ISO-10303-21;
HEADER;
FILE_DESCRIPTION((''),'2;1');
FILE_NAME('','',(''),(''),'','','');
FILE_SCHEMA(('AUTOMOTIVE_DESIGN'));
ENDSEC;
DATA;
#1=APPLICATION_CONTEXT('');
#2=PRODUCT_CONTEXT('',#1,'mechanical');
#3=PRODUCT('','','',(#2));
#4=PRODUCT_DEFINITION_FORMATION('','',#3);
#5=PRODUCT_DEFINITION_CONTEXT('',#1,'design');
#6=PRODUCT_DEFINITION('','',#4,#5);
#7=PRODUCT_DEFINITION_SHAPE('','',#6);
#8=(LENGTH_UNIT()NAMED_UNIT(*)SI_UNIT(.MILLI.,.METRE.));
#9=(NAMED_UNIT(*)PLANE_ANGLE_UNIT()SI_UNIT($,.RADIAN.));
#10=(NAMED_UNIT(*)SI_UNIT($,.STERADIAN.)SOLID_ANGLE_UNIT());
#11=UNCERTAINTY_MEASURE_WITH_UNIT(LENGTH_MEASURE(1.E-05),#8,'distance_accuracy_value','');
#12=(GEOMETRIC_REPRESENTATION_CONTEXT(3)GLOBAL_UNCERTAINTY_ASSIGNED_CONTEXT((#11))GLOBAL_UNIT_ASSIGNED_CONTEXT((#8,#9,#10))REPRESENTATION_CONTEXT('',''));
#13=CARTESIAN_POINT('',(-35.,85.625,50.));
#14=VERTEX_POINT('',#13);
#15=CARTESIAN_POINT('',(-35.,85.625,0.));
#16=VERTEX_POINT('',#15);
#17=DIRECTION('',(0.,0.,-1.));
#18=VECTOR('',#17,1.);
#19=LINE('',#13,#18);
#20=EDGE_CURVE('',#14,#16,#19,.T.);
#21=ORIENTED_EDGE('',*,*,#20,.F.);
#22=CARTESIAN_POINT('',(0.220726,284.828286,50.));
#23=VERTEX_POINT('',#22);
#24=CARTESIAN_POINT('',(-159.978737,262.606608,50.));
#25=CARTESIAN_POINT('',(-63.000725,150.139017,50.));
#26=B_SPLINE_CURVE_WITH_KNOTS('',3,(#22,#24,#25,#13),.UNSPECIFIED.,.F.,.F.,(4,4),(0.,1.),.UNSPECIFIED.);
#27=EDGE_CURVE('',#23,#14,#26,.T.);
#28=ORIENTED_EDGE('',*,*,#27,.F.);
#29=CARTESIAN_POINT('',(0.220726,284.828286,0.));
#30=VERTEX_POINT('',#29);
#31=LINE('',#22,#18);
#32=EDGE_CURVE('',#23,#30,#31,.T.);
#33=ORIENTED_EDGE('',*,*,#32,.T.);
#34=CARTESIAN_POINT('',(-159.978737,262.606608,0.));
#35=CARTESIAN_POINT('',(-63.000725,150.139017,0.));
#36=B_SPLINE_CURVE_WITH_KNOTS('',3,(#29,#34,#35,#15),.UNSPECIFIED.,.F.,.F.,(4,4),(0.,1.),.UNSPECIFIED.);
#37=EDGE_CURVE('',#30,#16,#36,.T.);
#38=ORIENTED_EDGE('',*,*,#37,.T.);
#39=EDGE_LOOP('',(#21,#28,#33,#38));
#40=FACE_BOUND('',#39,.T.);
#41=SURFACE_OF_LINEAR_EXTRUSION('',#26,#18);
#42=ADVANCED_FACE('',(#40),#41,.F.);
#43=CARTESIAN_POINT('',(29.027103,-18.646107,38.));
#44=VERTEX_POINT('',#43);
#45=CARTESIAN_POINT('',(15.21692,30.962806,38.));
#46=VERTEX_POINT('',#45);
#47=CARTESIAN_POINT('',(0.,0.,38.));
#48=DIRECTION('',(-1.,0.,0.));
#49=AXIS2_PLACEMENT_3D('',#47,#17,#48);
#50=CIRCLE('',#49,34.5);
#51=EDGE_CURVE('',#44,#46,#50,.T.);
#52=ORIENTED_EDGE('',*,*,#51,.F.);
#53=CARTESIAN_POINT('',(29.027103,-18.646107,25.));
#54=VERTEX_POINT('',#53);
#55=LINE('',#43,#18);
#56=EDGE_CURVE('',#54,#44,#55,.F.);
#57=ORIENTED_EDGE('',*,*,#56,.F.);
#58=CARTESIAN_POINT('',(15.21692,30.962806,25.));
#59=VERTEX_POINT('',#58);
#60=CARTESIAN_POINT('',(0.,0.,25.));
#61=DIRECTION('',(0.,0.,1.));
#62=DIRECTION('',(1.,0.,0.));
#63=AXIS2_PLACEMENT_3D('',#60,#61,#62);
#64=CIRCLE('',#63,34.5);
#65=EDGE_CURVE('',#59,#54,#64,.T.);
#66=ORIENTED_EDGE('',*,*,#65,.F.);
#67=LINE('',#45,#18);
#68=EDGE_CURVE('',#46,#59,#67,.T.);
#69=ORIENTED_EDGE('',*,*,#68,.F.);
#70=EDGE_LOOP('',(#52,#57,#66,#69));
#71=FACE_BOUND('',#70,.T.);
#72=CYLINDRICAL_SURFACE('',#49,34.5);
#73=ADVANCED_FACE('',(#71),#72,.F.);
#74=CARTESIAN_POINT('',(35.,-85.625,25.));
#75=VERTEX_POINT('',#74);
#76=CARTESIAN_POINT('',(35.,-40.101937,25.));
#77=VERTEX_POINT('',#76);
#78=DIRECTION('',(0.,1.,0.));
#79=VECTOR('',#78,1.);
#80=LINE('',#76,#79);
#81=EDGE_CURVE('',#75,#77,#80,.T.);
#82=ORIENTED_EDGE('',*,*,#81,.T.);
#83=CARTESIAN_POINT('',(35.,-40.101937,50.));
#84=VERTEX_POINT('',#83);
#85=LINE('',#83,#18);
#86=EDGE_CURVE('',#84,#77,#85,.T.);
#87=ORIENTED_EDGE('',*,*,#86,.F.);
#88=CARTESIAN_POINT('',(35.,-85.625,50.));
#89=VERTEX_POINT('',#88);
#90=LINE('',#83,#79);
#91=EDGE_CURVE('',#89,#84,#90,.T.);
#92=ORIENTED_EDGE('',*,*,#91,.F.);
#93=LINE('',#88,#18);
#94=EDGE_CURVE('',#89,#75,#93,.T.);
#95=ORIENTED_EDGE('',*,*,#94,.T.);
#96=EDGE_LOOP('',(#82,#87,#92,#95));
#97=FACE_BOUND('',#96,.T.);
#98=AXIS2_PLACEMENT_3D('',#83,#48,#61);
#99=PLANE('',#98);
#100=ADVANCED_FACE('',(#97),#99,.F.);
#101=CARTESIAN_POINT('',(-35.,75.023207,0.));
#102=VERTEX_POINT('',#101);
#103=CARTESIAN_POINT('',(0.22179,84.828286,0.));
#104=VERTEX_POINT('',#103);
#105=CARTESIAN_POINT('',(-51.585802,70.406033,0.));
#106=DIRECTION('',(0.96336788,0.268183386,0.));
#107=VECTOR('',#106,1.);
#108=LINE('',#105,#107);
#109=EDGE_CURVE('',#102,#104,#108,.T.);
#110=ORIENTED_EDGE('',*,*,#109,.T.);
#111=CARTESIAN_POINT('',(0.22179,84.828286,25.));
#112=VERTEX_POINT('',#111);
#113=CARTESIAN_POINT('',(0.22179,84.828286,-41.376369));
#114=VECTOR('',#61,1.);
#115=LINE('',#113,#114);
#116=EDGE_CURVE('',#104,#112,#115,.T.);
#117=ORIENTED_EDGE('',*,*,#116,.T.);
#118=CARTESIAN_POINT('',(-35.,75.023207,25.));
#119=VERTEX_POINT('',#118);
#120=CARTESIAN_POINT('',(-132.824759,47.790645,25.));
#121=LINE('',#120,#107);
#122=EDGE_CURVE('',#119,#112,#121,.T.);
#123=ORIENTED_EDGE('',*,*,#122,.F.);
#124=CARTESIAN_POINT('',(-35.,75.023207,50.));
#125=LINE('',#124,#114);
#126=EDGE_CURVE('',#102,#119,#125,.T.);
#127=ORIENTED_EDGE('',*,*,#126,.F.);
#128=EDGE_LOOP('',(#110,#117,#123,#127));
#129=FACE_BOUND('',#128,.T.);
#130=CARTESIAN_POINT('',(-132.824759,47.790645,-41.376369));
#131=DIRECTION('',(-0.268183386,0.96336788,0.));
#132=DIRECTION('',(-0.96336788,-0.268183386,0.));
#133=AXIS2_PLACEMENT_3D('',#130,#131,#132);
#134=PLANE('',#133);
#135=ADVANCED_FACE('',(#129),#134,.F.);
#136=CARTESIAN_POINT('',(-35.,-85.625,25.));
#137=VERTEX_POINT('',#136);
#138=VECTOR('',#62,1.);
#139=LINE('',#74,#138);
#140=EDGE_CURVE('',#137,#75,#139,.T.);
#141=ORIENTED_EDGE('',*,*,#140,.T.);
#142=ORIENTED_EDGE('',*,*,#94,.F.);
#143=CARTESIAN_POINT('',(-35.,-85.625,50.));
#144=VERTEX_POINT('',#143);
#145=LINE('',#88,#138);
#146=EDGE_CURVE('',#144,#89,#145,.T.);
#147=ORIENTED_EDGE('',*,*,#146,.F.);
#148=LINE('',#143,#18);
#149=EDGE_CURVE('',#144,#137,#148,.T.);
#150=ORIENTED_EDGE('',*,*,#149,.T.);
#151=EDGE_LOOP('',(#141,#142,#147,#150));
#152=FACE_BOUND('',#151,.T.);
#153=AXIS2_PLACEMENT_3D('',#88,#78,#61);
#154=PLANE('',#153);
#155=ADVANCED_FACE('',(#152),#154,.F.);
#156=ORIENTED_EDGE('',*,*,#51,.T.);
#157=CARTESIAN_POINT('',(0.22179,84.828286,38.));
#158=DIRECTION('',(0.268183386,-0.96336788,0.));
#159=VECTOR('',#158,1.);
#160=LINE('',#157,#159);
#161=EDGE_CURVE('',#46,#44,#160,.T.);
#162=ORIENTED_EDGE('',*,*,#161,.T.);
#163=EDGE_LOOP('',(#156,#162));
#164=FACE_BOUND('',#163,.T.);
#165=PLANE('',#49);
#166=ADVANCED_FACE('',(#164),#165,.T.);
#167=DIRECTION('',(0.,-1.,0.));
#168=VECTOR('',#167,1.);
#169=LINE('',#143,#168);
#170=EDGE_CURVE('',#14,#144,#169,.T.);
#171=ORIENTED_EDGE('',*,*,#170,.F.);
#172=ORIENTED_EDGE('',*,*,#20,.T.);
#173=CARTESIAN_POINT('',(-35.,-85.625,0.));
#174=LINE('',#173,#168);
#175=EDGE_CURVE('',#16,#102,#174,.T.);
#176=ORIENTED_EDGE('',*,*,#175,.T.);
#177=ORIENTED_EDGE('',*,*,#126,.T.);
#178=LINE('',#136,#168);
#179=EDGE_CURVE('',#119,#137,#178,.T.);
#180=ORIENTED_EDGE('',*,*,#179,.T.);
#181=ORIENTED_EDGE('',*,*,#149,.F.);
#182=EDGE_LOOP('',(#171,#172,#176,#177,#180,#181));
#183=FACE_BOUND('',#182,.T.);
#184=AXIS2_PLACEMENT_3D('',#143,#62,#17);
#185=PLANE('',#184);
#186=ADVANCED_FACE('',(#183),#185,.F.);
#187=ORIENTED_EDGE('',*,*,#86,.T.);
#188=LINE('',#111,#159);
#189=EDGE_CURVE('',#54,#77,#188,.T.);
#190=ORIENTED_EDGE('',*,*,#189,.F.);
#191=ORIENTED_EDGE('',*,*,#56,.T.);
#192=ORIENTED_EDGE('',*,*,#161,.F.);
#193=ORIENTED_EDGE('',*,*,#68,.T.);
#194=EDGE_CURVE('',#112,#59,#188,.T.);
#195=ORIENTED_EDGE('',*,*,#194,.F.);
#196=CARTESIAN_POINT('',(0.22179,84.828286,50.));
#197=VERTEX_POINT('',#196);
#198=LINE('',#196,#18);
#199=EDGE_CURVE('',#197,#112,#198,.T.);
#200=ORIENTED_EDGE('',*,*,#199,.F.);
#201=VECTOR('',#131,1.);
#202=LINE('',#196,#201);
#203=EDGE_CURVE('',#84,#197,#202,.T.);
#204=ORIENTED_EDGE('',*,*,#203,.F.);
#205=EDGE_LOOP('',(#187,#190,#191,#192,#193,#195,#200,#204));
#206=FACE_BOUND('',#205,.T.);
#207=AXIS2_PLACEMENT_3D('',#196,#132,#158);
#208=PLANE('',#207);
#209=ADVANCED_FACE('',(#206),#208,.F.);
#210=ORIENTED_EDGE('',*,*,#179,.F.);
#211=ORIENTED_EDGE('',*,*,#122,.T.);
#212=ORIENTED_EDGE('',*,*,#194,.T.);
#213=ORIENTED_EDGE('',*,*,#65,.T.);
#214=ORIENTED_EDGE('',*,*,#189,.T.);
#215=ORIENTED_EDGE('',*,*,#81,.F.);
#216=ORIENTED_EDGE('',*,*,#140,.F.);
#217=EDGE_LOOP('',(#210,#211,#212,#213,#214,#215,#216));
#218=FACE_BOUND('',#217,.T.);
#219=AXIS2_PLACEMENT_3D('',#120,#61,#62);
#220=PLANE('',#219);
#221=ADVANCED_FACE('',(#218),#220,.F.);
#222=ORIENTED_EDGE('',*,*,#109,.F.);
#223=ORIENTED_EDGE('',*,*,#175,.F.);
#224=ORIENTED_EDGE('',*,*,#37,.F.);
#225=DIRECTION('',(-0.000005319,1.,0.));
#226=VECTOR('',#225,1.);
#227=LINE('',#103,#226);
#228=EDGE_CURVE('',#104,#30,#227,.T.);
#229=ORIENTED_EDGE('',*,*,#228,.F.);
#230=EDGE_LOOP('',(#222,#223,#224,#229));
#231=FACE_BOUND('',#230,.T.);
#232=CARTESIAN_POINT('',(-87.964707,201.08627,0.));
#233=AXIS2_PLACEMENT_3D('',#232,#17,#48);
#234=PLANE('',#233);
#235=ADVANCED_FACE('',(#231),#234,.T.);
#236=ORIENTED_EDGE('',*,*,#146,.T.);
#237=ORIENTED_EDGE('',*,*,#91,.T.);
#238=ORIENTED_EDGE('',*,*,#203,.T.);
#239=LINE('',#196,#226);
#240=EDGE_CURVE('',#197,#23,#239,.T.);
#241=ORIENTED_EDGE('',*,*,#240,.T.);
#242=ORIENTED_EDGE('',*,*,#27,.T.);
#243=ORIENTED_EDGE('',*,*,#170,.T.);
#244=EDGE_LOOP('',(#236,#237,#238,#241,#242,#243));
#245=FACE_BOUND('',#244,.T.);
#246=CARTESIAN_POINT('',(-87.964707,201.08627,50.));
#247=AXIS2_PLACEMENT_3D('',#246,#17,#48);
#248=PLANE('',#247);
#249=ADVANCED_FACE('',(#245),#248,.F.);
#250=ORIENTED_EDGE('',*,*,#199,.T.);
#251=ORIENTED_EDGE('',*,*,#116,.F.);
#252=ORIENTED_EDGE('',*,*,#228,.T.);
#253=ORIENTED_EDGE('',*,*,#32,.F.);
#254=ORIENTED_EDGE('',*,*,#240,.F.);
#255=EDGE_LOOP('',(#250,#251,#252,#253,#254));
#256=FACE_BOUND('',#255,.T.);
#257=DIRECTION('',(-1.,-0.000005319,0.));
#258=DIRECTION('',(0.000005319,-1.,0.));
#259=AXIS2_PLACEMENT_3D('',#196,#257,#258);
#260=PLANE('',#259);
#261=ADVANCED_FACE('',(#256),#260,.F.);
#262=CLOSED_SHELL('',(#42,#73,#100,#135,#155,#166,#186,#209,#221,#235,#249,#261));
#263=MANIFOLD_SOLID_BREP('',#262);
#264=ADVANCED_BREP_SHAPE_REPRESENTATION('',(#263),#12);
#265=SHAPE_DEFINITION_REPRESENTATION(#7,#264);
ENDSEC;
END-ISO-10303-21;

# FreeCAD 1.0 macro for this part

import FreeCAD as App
import Part
import Sketcher

V = App.Vector

doc = App.newDocument("Part")
body = doc.addObject("PartDesign::Body", "Body")

# Sketch on XY plane
sketch1 = body.newObject("Sketcher::SketchObject", "Sketch")
sketch1.AttachmentSupport = (doc.getObject("XY_Plane"), [""])
sketch1.MapMode = "FlatFace"
sketch1.addGeometry(Part.LineSegment(V(0.22179, 84.828286, 0), V(0.220726, 284.828286, 0)), False)
sketch1.addGeometry(Part.BSplineCurve([V(0.220726, 284.828286, 0), V(-159.978737, 262.606608, 0), V(-63.000725, 150.139017, 0), V(-35, 85.625, 0)], [4, 4], [0, 1], False, 3, [1, 1, 1, 1], False), False)
sketch1.addGeometry(Part.LineSegment(V(-35, 85.625, 0), V(-35, -85.625, 0)), False)
sketch1.addGeometry(Part.LineSegment(V(-35, -85.625, 0), V(35, -85.625, 0)), False)
sketch1.addGeometry(Part.LineSegment(V(35, -85.625, 0), V(35, -40.101937, 0)), False)
sketch1.addGeometry(Part.LineSegment(V(35, -40.101937, 0), V(0.22179, 84.828286, 0)), False)
sketch1.addConstraint(Sketcher.Constraint("Block", 1))
sketch1.addConstraint(Sketcher.Constraint("Coincident", 0, 2, 1, 1))
sketch1.addConstraint(Sketcher.Constraint("Coincident", 1, 2, 2, 1))
sketch1.addConstraint(Sketcher.Constraint("Coincident", 2, 2, 3, 1))
sketch1.addConstraint(Sketcher.Constraint("Coincident", 3, 2, 4, 1))
sketch1.addConstraint(Sketcher.Constraint("Coincident", 4, 2, 5, 1))
sketch1.addConstraint(Sketcher.Constraint("Coincident", 5, 2, 0, 1))
sketch1.addConstraint(Sketcher.Constraint("Vertical", 2))
sketch1.addConstraint(Sketcher.Constraint("Horizontal", 3))
sketch1.addConstraint(Sketcher.Constraint("Vertical", 4))
sketch1.addConstraint(Sketcher.Constraint("DistanceX", 3, 1, 3, 2, 70.0))
sketch1.addConstraint(Sketcher.Constraint("Distance", 0, 200.0))
sketch1.addConstraint(Sketcher.Constraint("DistanceY", 2, 2, 2, 1, 171.25))
sketch1.addConstraint(Sketcher.Constraint("DistanceY", 4, 1, 4, 2, 45.523063))
sketch1.addConstraint(Sketcher.Constraint("DistanceX", -1, 1, 5, 2, 0.22179))
pad1 = body.newObject("PartDesign::Pad", "Pad")
pad1.Profile = sketch1
pad1.Length = 50

# Sketch on an angled plane
sketch2 = body.newObject("Sketcher::SketchObject", "Sketch001")
sketch2.Placement = App.Placement(V(22.122012, 6.158349, 0), App.Rotation(V(0, 0, -1), V(-0.268183386, 0.96336788, 0), V(0.96336788, 0.268183386, 0), "ZXY"))
sketch2.addGeometry(Part.LineSegment(V(-25, 81.661366, 0), V(-25, -107.29943, 0)), False)
sketch2.addGeometry(Part.LineSegment(V(-25, -107.29943, 0), V(41.376369, -107.29943, 0)), False)
sketch2.addGeometry(Part.LineSegment(V(41.376369, -107.29943, 0), V(41.376369, 81.661366, 0)), False)
sketch2.addGeometry(Part.LineSegment(V(41.376369, 81.661366, 0), V(-25, 81.661366, 0)), False)
sketch2.addConstraint(Sketcher.Constraint("Coincident", 0, 2, 1, 1))
sketch2.addConstraint(Sketcher.Constraint("Coincident", 1, 2, 2, 1))
sketch2.addConstraint(Sketcher.Constraint("Coincident", 2, 2, 3, 1))
sketch2.addConstraint(Sketcher.Constraint("Coincident", 3, 2, 0, 1))
sketch2.addConstraint(Sketcher.Constraint("Vertical", 0))
sketch2.addConstraint(Sketcher.Constraint("Horizontal", 1))
sketch2.addConstraint(Sketcher.Constraint("Vertical", 2))
sketch2.addConstraint(Sketcher.Constraint("Horizontal", 3))
sketch2.addConstraint(Sketcher.Constraint("DistanceX", 0, 2, -1, 1, 25.0))
sketch2.addConstraint(Sketcher.Constraint("DistanceX", 1, 1, 1, 2, 66.376369))
sketch2.addConstraint(Sketcher.Constraint("DistanceY", 0, 2, 0, 1, 188.960796))
sketch2.addConstraint(Sketcher.Constraint("DistanceY", 0, 2, -1, 1, 107.29943))
pocket1 = body.newObject("PartDesign::Pocket", "Pocket")
pocket1.Profile = sketch2
pocket1.Type = "ThroughAll"

# Sketch on XY plane
sketch3 = body.newObject("Sketcher::SketchObject", "Sketch002")
sketch3.AttachmentSupport = (doc.getObject("XY_Plane"), [""])
sketch3.MapMode = "FlatFace"
sketch3.AttachmentOffset = App.Placement(V(0, 0, 25), App.Rotation())
sketch3.addGeometry(Part.Circle(V(0, 0, 0), V(0, 0, 1), 34.5), False)
sketch3.addConstraint(Sketcher.Constraint("Coincident", 0, 3, -1, 1))
sketch3.addConstraint(Sketcher.Constraint("Diameter", 0, 69.0))
pocket2 = body.newObject("PartDesign::Pocket", "Pocket001")
pocket2.Profile = sketch3
pocket2.Length = 13
pocket2.Reversed = True

doc.recompute()
